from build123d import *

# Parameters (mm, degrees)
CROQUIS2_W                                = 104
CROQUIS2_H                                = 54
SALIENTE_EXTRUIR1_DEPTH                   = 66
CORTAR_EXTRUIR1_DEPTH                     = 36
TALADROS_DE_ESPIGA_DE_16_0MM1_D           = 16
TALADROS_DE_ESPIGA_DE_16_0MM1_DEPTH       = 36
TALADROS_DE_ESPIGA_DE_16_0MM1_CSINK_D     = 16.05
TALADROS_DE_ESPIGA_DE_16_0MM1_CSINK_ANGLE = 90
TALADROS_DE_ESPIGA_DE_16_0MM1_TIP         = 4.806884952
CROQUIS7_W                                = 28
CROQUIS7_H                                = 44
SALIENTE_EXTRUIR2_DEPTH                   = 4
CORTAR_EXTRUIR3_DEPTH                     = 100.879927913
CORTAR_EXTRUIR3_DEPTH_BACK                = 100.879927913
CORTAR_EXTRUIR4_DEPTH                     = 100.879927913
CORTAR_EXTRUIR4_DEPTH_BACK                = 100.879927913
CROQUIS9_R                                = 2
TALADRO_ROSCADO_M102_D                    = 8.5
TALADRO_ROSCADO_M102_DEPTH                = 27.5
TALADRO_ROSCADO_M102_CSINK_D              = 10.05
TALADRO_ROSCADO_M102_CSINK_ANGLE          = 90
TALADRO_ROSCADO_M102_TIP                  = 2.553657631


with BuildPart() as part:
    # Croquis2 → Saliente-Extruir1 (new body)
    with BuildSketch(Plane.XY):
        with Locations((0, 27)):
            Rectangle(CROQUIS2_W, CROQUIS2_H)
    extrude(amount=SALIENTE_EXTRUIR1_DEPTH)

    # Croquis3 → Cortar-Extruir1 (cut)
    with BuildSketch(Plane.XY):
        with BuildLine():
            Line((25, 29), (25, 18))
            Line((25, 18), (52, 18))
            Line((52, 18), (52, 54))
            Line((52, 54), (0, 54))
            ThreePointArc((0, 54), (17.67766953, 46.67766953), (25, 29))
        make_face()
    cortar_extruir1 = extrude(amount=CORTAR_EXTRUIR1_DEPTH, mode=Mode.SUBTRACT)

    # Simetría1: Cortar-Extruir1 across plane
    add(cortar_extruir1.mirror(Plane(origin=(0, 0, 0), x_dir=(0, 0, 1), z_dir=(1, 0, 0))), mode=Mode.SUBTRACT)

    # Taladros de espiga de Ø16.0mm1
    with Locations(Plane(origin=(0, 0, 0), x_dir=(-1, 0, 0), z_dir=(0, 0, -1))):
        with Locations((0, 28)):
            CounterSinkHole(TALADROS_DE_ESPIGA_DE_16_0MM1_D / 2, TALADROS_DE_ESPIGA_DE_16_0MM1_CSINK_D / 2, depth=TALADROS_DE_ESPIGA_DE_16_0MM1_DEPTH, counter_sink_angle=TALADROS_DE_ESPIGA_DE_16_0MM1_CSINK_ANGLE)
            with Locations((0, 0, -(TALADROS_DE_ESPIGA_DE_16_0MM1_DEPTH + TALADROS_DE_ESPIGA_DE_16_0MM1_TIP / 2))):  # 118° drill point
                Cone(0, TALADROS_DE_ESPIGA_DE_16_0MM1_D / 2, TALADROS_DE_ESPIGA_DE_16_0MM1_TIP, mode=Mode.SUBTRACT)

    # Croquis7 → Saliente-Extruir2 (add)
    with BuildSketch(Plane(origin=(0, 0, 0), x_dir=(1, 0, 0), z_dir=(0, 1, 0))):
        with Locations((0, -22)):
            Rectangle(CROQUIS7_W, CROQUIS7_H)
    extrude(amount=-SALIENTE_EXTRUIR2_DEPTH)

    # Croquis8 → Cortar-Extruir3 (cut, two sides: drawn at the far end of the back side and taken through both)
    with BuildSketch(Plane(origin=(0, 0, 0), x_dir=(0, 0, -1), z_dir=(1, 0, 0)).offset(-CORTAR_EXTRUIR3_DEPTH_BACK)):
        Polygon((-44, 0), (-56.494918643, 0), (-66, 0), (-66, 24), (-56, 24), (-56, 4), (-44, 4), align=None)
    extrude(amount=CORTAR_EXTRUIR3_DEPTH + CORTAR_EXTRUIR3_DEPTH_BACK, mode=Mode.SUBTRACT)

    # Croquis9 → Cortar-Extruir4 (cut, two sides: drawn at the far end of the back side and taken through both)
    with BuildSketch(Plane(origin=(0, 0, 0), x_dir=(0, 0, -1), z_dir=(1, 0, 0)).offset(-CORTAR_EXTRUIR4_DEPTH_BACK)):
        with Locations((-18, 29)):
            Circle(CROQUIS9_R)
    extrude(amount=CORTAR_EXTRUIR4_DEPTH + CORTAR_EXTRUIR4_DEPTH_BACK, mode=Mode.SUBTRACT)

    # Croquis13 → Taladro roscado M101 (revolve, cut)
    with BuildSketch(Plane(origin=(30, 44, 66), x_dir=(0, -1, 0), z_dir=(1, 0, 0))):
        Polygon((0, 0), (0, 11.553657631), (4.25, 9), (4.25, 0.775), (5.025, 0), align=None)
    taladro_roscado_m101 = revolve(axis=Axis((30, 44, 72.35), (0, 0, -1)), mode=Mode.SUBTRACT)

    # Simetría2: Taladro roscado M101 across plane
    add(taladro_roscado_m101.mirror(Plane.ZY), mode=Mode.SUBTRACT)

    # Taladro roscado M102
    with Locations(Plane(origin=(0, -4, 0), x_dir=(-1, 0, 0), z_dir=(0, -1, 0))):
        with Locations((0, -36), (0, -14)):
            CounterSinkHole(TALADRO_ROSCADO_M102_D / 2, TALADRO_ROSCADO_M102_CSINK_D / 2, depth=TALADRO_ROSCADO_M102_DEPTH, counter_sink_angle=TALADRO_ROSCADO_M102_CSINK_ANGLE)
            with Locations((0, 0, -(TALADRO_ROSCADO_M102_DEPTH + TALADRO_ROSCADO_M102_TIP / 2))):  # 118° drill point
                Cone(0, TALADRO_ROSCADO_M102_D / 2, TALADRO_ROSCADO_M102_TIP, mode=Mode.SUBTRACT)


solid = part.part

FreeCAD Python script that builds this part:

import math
import FreeCAD as App
import Part
import Sketcher

V = App.Vector
Q = App.Units.Quantity

doc = App.newDocument("Part")
body = doc.addObject("PartDesign::Body", "Body")

# Sketch on XY plane
sketch1 = body.newObject("Sketcher::SketchObject", "Sketch")
sketch1.AttachmentSupport = (doc.getObject("XY_Plane"), [""])
sketch1.MapMode = "FlatFace"
sketch1.addGeometry([
    Part.LineSegment(V(-52, 54, 0), V(-52, 0, 0)),
    Part.LineSegment(V(-52, 0, 0), V(52, 0, 0)),
    Part.LineSegment(V(52, 0, 0), V(52, 54, 0)),
    Part.LineSegment(V(52, 54, 0), V(-52, 54, 0)),
], False)
sketch1.addConstraint([
    Sketcher.Constraint("Coincident", 0, 2, 1, 1),
    Sketcher.Constraint("Coincident", 1, 2, 2, 1),
    Sketcher.Constraint("Coincident", 2, 2, 3, 1),
    Sketcher.Constraint("Coincident", 3, 2, 0, 1),
    Sketcher.Constraint("Vertical", 0),
    Sketcher.Constraint("Horizontal", 1),
    Sketcher.Constraint("Vertical", 2),
    Sketcher.Constraint("Horizontal", 3),
    Sketcher.Constraint("Symmetric", 0, 2, 1, 2, -1, 1),
    Sketcher.Constraint("DistanceX", 1, 1, 1, 2, 104.0),
    Sketcher.Constraint("DistanceY", 0, 2, 0, 1, 54.0),
])
pad1 = body.newObject("PartDesign::Pad", "Pad")
pad1.Profile = sketch1
pad1.Length = 66

# Sketch on XY plane
sketch2 = body.newObject("Sketcher::SketchObject", "Sketch001")
sketch2.AttachmentSupport = (doc.getObject("XY_Plane"), [""])
sketch2.MapMode = "FlatFace"
sketch2.addGeometry([
    Part.LineSegment(V(25, 29, 0), V(25, 18, 0)),  # 0
    Part.LineSegment(V(25, 18, 0), V(52, 18, 0)),  # 1
    Part.LineSegment(V(52, 18, 0), V(52, 54, 0)),  # 2
    Part.LineSegment(V(52, 54, 0), V(0, 54, 0)),  # 3
    Part.ArcOfCircle(Part.Circle(V(0, 29, 0), V(0, 0, 1), 25), math.radians(0), math.radians(90)),  # 4
], False)
sketch2.addConstraint([
    Sketcher.Constraint("Coincident", 0, 2, 1, 1),
    Sketcher.Constraint("Coincident", 1, 2, 2, 1),
    Sketcher.Constraint("Coincident", 2, 2, 3, 1),
    Sketcher.Constraint("Tangent", 3, 2, 4, 2),
    Sketcher.Constraint("Tangent", 4, 1, 0, 1),
    Sketcher.Constraint("Vertical", 0),
    Sketcher.Constraint("Horizontal", 1),
    Sketcher.Constraint("Vertical", 2),
    Sketcher.Constraint("Horizontal", 3),
    Sketcher.Constraint("PointOnObject", 4, 3, -2),
    Sketcher.Constraint("Radius", 4, 25.0),
    Sketcher.Constraint("DistanceX", 1, 1, 1, 2, 27.0),
    Sketcher.Constraint("DistanceY", 0, 2, 0, 1, 11.0),
    Sketcher.Constraint("DistanceY", -1, 1, 4, 3, 29.0),
])
pocket1 = body.newObject("PartDesign::Pocket", "Pocket")
pocket1.Profile = sketch2
pocket1.Length = 36
pocket1.Reversed = True
doc.recompute()

mirrored = body.newObject("PartDesign::Mirrored", "Mirrored")
mirrored.Originals = [pocket1]
mirrored.MirrorPlane = (doc.getObject("YZ_Plane"), [""])
body.Tip = mirrored

# Sketch on XY plane
sketch3 = body.newObject("Sketcher::SketchObject", "Sketch002")
sketch3.AttachmentSupport = (doc.getObject("XY_Plane"), [""])
sketch3.MapMode = "FlatFace"
sketch3.addGeometry(Part.Circle(V(0, 28, 0), V(0, 0, 1), 8), False)
sketch3.addConstraint([
    Sketcher.Constraint("PointOnObject", 0, 3, -2),
    Sketcher.Constraint("Diameter", 0, 16.0),
    Sketcher.Constraint("DistanceY", -1, 1, 0, 3, 28.0),
])
doc.recompute()
hole = body.newObject("PartDesign::Hole", "Hole")
hole.Profile = sketch3
hole.ThreadType = "None"
hole.Diameter = 16
hole.DepthType = "Dimension"
hole.Depth = 36
hole.DrillPoint = "Angled"
hole.DrillPointAngle = 118
hole.HoleCutType = "Countersink"
hole.HoleCutDiameter = 16.05
hole.HoleCutCountersinkAngle = 90
hole.Reversed = True

# Sketch on XZ plane
sketch4 = body.newObject("Sketcher::SketchObject", "Sketch003")
sketch4.AttachmentSupport = (doc.getObject("XZ_Plane"), [""])
sketch4.MapMode = "FlatFace"
sketch4.addGeometry([
    Part.LineSegment(V(-14, 0, 0), V(-14, 44, 0)),
    Part.LineSegment(V(-14, 44, 0), V(14, 44, 0)),
    Part.LineSegment(V(14, 44, 0), V(14, 0, 0)),
    Part.LineSegment(V(14, 0, 0), V(-14, 0, 0)),
], False)
sketch4.addConstraint([
    Sketcher.Constraint("Coincident", 0, 2, 1, 1),
    Sketcher.Constraint("Coincident", 1, 2, 2, 1),
    Sketcher.Constraint("Coincident", 2, 2, 3, 1),
    Sketcher.Constraint("Coincident", 3, 2, 0, 1),
    Sketcher.Constraint("Vertical", 0),
    Sketcher.Constraint("Horizontal", 1),
    Sketcher.Constraint("Vertical", 2),
    Sketcher.Constraint("Horizontal", 3),
    Sketcher.Constraint("Symmetric", 2, 2, 3, 2, -1, 1),
    Sketcher.Constraint("DistanceX", 1, 1, 1, 2, 28.0),
    Sketcher.Constraint("DistanceY", 0, 1, 0, 2, 44.0),
])
pad2 = body.newObject("PartDesign::Pad", "Pad001")
pad2.Profile = sketch4
pad2.Length = 4

# Sketch on YZ plane
sketch5 = body.newObject("Sketcher::SketchObject", "Sketch004")
sketch5.AttachmentSupport = (doc.getObject("YZ_Plane"), [""])
sketch5.MapMode = "FlatFace"
sketch5.addGeometry([
    Part.LineSegment(V(0, 66, 0), V(0, 44, 0)),  # 0
    Part.LineSegment(V(0, 44, 0), V(4, 44, 0)),  # 1
    Part.LineSegment(V(4, 44, 0), V(4, 56, 0)),  # 2
    Part.LineSegment(V(4, 56, 0), V(24, 56, 0)),  # 3
    Part.LineSegment(V(24, 56, 0), V(24, 66, 0)),  # 4
    Part.LineSegment(V(24, 66, 0), V(0, 66, 0)),  # 5
], False)
sketch5.addConstraint([
    Sketcher.Constraint("Coincident", 0, 2, 1, 1),
    Sketcher.Constraint("Coincident", 1, 2, 2, 1),
    Sketcher.Constraint("Coincident", 2, 2, 3, 1),
    Sketcher.Constraint("Coincident", 3, 2, 4, 1),
    Sketcher.Constraint("Coincident", 4, 2, 5, 1),
    Sketcher.Constraint("Coincident", 5, 2, 0, 1),
    Sketcher.Constraint("Vertical", 0),
    Sketcher.Constraint("Horizontal", 1),
    Sketcher.Constraint("Vertical", 2),
    Sketcher.Constraint("Horizontal", 3),
    Sketcher.Constraint("Vertical", 4),
    Sketcher.Constraint("Horizontal", 5),
    Sketcher.Constraint("PointOnObject", 0, 2, -2),
    Sketcher.Constraint("DistanceX", 1, 1, 1, 2, 4.0),
    Sketcher.Constraint("DistanceX", 3, 1, 3, 2, 20.0),
    Sketcher.Constraint("DistanceY", 0, 2, 0, 1, 22.0),
    Sketcher.Constraint("DistanceY", 2, 1, 2, 2, 12.0),
    Sketcher.Constraint("DistanceY", -1, 1, 0, 2, 44.0),
])
pocket2 = body.newObject("PartDesign::Pocket", "Pocket001")
pocket2.Profile = sketch5
pocket2.Type = "ThroughAll"
pocket2.Midplane = True

# Sketch on YZ plane
sketch6 = body.newObject("Sketcher::SketchObject", "Sketch005")
sketch6.AttachmentSupport = (doc.getObject("YZ_Plane"), [""])
sketch6.MapMode = "FlatFace"
sketch6.addGeometry(Part.Circle(V(29, 18, 0), V(0, 0, 1), 2), False)
sketch6.addConstraint([
    Sketcher.Constraint("Diameter", 0, 4.0),
    Sketcher.Constraint("DistanceX", -1, 1, 0, 3, 29.0),
    Sketcher.Constraint("DistanceY", -1, 1, 0, 3, 18.0),
])
pocket3 = body.newObject("PartDesign::Pocket", "Pocket002")
pocket3.Profile = sketch6
pocket3.Type = "ThroughAll"
pocket3.Midplane = True

# Sketch on YZ plane
sketch7 = body.newObject("Sketcher::SketchObject", "Sketch006")
sketch7.AttachmentSupport = (doc.getObject("YZ_Plane"), [""])
sketch7.MapMode = "FlatFace"
sketch7.AttachmentOffset = App.Placement(V(0, 0, 30), App.Rotation())
sketch7.addGeometry([
    Part.LineSegment(V(44, 54.4, 0), V(44, 66, 0)),  # 0
    Part.LineSegment(V(44, 66, 0), V(39, 66, 0)),  # 1
    Part.LineSegment(V(39, 66, 0), V(39.8, 65.2, 0)),  # 2
    Part.LineSegment(V(39.8, 65.2, 0), V(39.8, 57, 0)),  # 3
    Part.LineSegment(V(39.8, 57, 0), V(44, 54.4, 0)),  # 4
], False)
sketch7.addGeometry(Part.LineSegment(V(44, 66, 0), V(44, 54.4, 0)), True)  # axis
sketch7.addConstraint([
    Sketcher.Constraint("Coincident", 0, 2, 1, 1),
    Sketcher.Constraint("Coincident", 1, 2, 2, 1),
    Sketcher.Constraint("Coincident", 2, 2, 3, 1),
    Sketcher.Constraint("Coincident", 3, 2, 4, 1),
    Sketcher.Constraint("Coincident", 4, 2, 0, 1),
    Sketcher.Constraint("Vertical", 0),
    Sketcher.Constraint("Horizontal", 1),
    Sketcher.Constraint("Vertical", 3),
    Sketcher.Constraint("Vertical", 5),
    Sketcher.Constraint("Coincident", 5, 1, 0, 2),
    Sketcher.Constraint("Equal", 0, 5),
    Sketcher.Constraint("Angle", 2, Q("-45 deg")),
    Sketcher.Constraint("Angle", 4, Q("-31 deg")),
    Sketcher.Constraint("DistanceX", -1, 1, 0, 2, 44.0),
    Sketcher.Constraint("DistanceY", -1, 1, 0, 2, 66.0),
    Sketcher.Constraint("DistanceY", -1, 1, 3, 2, 57.0),
    Sketcher.Constraint("DistanceX", 1, 2, 1, 1, 5.025),
    Sketcher.Constraint("DistanceY", 3, 2, 3, 1, 8.225),
])
groove = body.newObject("PartDesign::Groove", "Groove")
groove.Profile = sketch7
groove.ReferenceAxis = (sketch7, ["Axis0"])
groove.Angle = 360
doc.recompute()

mirrored2 = body.newObject("PartDesign::Mirrored", "Mirrored001")
mirrored2.Originals = [groove]
mirrored2.MirrorPlane = (doc.getObject("YZ_Plane"), [""])
body.Tip = mirrored2

# Sketch on XZ plane
sketch8 = body.newObject("Sketcher::SketchObject", "Sketch007")
sketch8.AttachmentSupport = (doc.getObject("XZ_Plane"), [""])
sketch8.MapMode = "FlatFace"
sketch8.AttachmentOffset = App.Placement(V(0, 0, 4), App.Rotation())
sketch8.addGeometry([
    Part.Circle(V(0, 36, 0), V(0, 0, 1), 4.2),
    Part.Circle(V(0, 14, 0), V(0, 0, 1), 4.2),
], False)
sketch8.addConstraint([
    Sketcher.Constraint("Equal", 0, 1),
    Sketcher.Constraint("PointOnObject", 0, 3, -2),
    Sketcher.Constraint("PointOnObject", 1, 3, -2),
    Sketcher.Constraint("Diameter", 0, 8.5),
    Sketcher.Constraint("DistanceY", -1, 1, 0, 3, 36.0),
    Sketcher.Constraint("DistanceY", -1, 1, 1, 3, 14.0),
])
doc.recompute()
hole2 = body.newObject("PartDesign::Hole", "Hole001")
hole2.Profile = sketch8
hole2.ThreadType = "None"
hole2.Diameter = 8.5
hole2.DepthType = "Dimension"
hole2.Depth = 27.5
hole2.DrillPoint = "Angled"
hole2.DrillPointAngle = 118
hole2.HoleCutType = "Countersink"
hole2.HoleCutDiameter = 10.05
hole2.HoleCutCountersinkAngle = 90

doc.recompute()
